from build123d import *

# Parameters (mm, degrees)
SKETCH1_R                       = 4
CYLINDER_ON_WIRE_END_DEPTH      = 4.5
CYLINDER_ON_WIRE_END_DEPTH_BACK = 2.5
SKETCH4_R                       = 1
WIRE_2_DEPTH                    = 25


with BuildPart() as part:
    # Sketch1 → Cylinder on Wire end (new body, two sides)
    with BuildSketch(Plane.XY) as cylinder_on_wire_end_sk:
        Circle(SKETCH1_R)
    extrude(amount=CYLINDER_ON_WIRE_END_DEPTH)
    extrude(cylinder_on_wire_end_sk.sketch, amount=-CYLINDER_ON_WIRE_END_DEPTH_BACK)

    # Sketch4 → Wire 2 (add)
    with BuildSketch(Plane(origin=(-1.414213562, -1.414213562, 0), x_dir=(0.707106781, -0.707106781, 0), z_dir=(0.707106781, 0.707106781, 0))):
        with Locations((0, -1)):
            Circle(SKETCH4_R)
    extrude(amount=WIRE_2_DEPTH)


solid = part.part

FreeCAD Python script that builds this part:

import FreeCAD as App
import Part
import Sketcher
from FreeCAD import Vector
Q = App.Units.Quantity

doc = App.newDocument("Part")
body = doc.addObject("PartDesign::Body", "Body")

sketch1 = body.newObject("Sketcher::SketchObject", "Sketch")
sketch1.AttachmentSupport = (doc.getObject("XY_Plane"), [""])
sketch1.MapMode = "FlatFace"
sketch1.addGeometry(Part.Circle(Vector(0, 0, 0), Vector(0, 0, 1), 4), False)
sketch1.addConstraint([
    Sketcher.Constraint("Coincident", 0, 3, -1, 1),
    Sketcher.Constraint("Diameter", 0, Q("8 mm")),
])
pad1 = body.newObject("PartDesign::Pad", "Pad")
pad1.Profile = sketch1
pad1.Type = "TwoLengths"
pad1.Length = 4.5
pad1.Length2 = 2.5

sketch2 = body.newObject("Sketcher::SketchObject", "Sketch001")
sketch2.Placement = App.Placement(Vector(-1.414214, -1.414214, 0), App.Rotation(Vector(0.707106781, -0.707106781, 0), Vector(0, 0, -0.999999999), Vector(0.707106781, 0.707106781, 0), "ZXY"))
sketch2.addGeometry(Part.Circle(Vector(0, -1, 0), Vector(0, 0, 1), 1), False)
sketch2.addConstraint([
    Sketcher.Constraint("PointOnObject", 0, 3, -2),
    Sketcher.Constraint("Diameter", 0, Q("2 mm")),
    Sketcher.Constraint("DistanceY", 0, 3, -1, 1, Q("1 mm")),
])
pad2 = body.newObject("PartDesign::Pad", "Pad001")
pad2.Profile = sketch2
pad2.Length = 25

doc.recompute()
